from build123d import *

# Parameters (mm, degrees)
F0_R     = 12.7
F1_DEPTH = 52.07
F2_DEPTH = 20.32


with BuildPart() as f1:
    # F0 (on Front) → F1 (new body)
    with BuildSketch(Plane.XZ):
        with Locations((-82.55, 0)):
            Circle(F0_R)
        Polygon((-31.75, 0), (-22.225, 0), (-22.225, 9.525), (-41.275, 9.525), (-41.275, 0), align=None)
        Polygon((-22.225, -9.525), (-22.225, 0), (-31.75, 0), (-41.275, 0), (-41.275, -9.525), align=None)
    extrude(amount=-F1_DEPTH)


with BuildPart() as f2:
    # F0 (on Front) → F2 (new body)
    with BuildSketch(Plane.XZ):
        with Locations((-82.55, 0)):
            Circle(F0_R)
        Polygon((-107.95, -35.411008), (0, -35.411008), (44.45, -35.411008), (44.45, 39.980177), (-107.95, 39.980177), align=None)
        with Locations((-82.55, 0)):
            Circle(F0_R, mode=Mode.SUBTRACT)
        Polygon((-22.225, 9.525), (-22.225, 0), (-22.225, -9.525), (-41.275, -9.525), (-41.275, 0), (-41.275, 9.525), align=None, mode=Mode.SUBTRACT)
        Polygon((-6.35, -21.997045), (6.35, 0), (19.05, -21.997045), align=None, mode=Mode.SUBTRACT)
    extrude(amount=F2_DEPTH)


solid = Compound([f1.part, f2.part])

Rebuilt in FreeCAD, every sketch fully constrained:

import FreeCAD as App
import Part
import Sketcher
Q = App.Units.Quantity


def add_polygon(sketch, points):
    """Adds a closed chain of lines whose ends are joined by coincident constraints."""
    first, n = sketch.GeometryCount, len(points)
    for a, b in zip(points, points[1:] + points[:1]):
        sketch.addGeometry(Part.LineSegment(App.Vector(*a, 0), App.Vector(*b, 0)), False)
    for i in range(n):
        sketch.addConstraint(Sketcher.Constraint("Coincident", first + i, 2, first + (i + 1) % n, 1))

doc = App.newDocument("Part")
body = doc.addObject("PartDesign::Body", "Body")
body.AllowCompound = True

# Sketch on XZ plane
sketch1 = doc.addObject("Sketcher::SketchObject", "Sketch")
body.addObject(sketch1)
sketch1.AttachmentSupport = (doc.XZ_Plane, [""])
sketch1.MapMode = "FlatFace"
sketch1.addGeometry(Part.Circle(App.Vector(-83, 0, 0), App.Vector(0, 0, 1), 13), False)  # 0
add_polygon(sketch1, [(-22, 10), (-41, 10), (-41, -10), (-22, -10)])  # lines 1-4
sketch1.addConstraint(Sketcher.Constraint("Horizontal", 1))
sketch1.addConstraint(Sketcher.Constraint("Vertical", 2))
sketch1.addConstraint(Sketcher.Constraint("Horizontal", 3))
sketch1.addConstraint(Sketcher.Constraint("Vertical", 4))
sketch1.addConstraint(Sketcher.Constraint("PointOnObject", 0, 3, -1))
sketch1.addConstraint(Sketcher.Constraint("Equal", 3, 2))
sketch1.addConstraint(Sketcher.Constraint("Diameter", 0, Q("1 in")))
sketch1.addConstraint(Sketcher.Constraint("DistanceX", 1, 2, 1, 1, Q("0.75 in")))
sketch1.addConstraint(Sketcher.Constraint("DistanceX", 0, 3, -1, 1, Q("3.25 in")))
sketch1.addConstraint(Sketcher.Constraint("DistanceX", 1, 2, -1, 1, Q("1.625 in")))
sketch1.addConstraint(Sketcher.Constraint("DistanceY", -1, 1, 1, 2, Q("0.375 in")))
pad1 = doc.addObject("PartDesign::Pad", "Pad")
body.addObject(pad1)
pad1.Profile = sketch1
pad1.Length = Q("2.05 in")
pad1.Reversed = True
body2 = doc.addObject("PartDesign::Body", "Body001")

# Sketch on XZ plane
sketch2 = doc.addObject("Sketcher::SketchObject", "Sketch001")
body2.addObject(sketch2)
sketch2.AttachmentSupport = (doc.getObject("XZ_Plane001"), [""])
sketch2.MapMode = "FlatFace"
add_polygon(sketch2, [(-108, -35), (44, -35), (44, 40), (-108, 40)])  # lines 0-3
add_polygon(sketch2, [(19, -22), (-6, -22), (6, 0)])  # lines 4-6
sketch2.addGeometry(Part.Circle(App.Vector(-83, 0, 0), App.Vector(0, 0, 1), 13), False)  # 7
add_polygon(sketch2, [(-41, 10), (-22, 10), (-22, -10), (-41, -10)])  # lines 8-11
sketch2.addConstraint(Sketcher.Constraint("Horizontal", 0))
sketch2.addConstraint(Sketcher.Constraint("Vertical", 1))
sketch2.addConstraint(Sketcher.Constraint("Horizontal", 2))
sketch2.addConstraint(Sketcher.Constraint("Vertical", 3))
sketch2.addConstraint(Sketcher.Constraint("Horizontal", 4))
sketch2.addConstraint(Sketcher.Constraint("Horizontal", 8))
sketch2.addConstraint(Sketcher.Constraint("Vertical", 9))
sketch2.addConstraint(Sketcher.Constraint("Horizontal", 10))
sketch2.addConstraint(Sketcher.Constraint("Vertical", 11))
sketch2.addConstraint(Sketcher.Constraint("PointOnObject", 7, 3, -1))
sketch2.addConstraint(Sketcher.Constraint("PointOnObject", 5, 2, -1))
sketch2.addConstraint(Sketcher.Constraint("Equal", 10, 9))
sketch2.addConstraint(Sketcher.Constraint("Equal", 5, 6))
sketch2.addConstraint(Sketcher.Constraint("Diameter", 7, Q("1 in")))
sketch2.addConstraint(Sketcher.Constraint("DistanceX", 0, 1, 0, 2, Q("6 in")))
sketch2.addConstraint(Sketcher.Constraint("DistanceX", 4, 2, 4, 1, Q("1 in")))
sketch2.addConstraint(Sketcher.Constraint("Distance", 5, Q("1 in")))
sketch2.addConstraint(Sketcher.Constraint("DistanceX", 7, 3, 0, 2, Q("5 in")))
sketch2.addConstraint(Sketcher.Constraint("DistanceX", 4, 2, 0, 2, Q("2 in")))
sketch2.addConstraint(Sketcher.Constraint("DistanceX", 8, 1, 8, 2, Q("0.75 in")))
sketch2.addConstraint(Sketcher.Constraint("DistanceX", 7, 3, -1, 1, Q("3.25 in")))
sketch2.addConstraint(Sketcher.Constraint("DistanceX", 8, 2, -1, 1, Q("0.875 in")))
sketch2.addConstraint(Sketcher.Constraint("DistanceY", -1, 1, 8, 2, Q("0.375 in")))
sketch2.addConstraint(Sketcher.Constraint("DistanceY", 1, 1, 1, 2, Q("75.391185 mm")))
sketch2.addConstraint(Sketcher.Constraint("DistanceY", 0, 2, -1, 1, Q("35.411008 mm")))
pad2 = doc.addObject("PartDesign::Pad", "Pad001")
body2.addObject(pad2)
pad2.Profile = sketch2
pad2.Length = Q("0.8 in")

doc.recompute()
